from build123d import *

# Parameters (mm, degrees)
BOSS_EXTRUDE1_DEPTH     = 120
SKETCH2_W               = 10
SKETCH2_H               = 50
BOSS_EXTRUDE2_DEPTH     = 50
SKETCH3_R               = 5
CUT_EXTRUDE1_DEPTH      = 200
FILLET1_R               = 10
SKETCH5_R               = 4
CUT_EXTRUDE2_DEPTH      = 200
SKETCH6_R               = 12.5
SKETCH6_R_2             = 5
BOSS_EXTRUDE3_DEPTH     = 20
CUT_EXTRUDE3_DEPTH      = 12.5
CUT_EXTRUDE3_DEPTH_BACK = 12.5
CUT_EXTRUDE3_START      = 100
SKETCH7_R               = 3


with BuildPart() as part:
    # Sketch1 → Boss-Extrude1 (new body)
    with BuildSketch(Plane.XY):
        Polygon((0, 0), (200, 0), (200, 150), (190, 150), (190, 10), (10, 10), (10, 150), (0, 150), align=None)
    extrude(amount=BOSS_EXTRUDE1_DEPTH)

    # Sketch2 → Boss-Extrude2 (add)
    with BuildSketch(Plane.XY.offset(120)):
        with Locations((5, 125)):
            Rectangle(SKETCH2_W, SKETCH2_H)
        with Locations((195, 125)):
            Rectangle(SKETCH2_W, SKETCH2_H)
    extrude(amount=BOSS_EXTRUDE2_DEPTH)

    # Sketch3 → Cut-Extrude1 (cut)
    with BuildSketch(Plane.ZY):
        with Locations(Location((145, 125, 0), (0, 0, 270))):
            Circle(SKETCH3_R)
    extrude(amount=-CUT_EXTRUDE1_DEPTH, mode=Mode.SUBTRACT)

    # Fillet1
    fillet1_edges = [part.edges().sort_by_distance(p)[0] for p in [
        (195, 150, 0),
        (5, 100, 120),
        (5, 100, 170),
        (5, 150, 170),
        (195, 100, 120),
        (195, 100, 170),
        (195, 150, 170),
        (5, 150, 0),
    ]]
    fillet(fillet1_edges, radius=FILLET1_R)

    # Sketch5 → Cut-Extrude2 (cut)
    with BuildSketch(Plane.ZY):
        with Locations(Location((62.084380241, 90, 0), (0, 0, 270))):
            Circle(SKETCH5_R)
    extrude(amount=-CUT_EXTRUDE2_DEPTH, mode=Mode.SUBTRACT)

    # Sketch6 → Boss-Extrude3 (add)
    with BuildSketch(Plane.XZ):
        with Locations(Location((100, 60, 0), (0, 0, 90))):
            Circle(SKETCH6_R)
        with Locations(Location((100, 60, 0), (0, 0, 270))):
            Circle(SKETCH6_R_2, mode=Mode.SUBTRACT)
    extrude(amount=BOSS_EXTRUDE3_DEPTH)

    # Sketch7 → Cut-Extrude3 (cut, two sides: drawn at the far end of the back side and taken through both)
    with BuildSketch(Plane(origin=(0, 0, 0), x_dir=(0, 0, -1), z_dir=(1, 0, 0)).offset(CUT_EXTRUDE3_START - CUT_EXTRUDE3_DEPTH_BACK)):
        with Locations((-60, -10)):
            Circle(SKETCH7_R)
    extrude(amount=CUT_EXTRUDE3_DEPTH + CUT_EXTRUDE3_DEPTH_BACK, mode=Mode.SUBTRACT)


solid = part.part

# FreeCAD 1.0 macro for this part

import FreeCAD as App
import Part
import Sketcher
from FreeCAD import Vector


def edges_at(feature, points):
    """Names of the edges that pass closest to the given points."""
    edges = feature.Shape.Edges
    near = lambda p: min(range(len(edges)), key=lambda i: edges[i].distToShape(Part.Vertex(*p))[0])
    return sorted({f"Edge{near(p) + 1}" for p in points})

doc = App.newDocument("Part")
body = doc.addObject("PartDesign::Body", "Body")

# Sketch on XY plane
sketch1 = body.newObject("Sketcher::SketchObject", "Sketch")
sketch1.AttachmentSupport = (doc.getObject("XY_Plane"), [""])
sketch1.MapMode = "FlatFace"
sketch1.addGeometry([
    Part.LineSegment(Vector(0, 0, 0), Vector(200, 0, 0)),  # 0
    Part.LineSegment(Vector(200, 0, 0), Vector(200, 150, 0)),  # 1
    Part.LineSegment(Vector(200, 150, 0), Vector(190, 150, 0)),  # 2
    Part.LineSegment(Vector(190, 150, 0), Vector(190, 10, 0)),  # 3
    Part.LineSegment(Vector(190, 10, 0), Vector(10, 10, 0)),  # 4
    Part.LineSegment(Vector(10, 10, 0), Vector(10, 150, 0)),  # 5
    Part.LineSegment(Vector(10, 150, 0), Vector(0, 150, 0)),  # 6
    Part.LineSegment(Vector(0, 150, 0), Vector(0, 0, 0)),  # 7
], False)
sketch1.addConstraint([
    Sketcher.Constraint("Coincident", 0, 2, 1, 1),
    Sketcher.Constraint("Coincident", 1, 2, 2, 1),
    Sketcher.Constraint("Coincident", 2, 2, 3, 1),
    Sketcher.Constraint("Coincident", 3, 2, 4, 1),
    Sketcher.Constraint("Coincident", 4, 2, 5, 1),
    Sketcher.Constraint("Coincident", 5, 2, 6, 1),
    Sketcher.Constraint("Coincident", 6, 2, 7, 1),
    Sketcher.Constraint("Coincident", 7, 2, 0, 1),
    Sketcher.Constraint("Horizontal", 0),
    Sketcher.Constraint("Vertical", 1),
    Sketcher.Constraint("Horizontal", 2),
    Sketcher.Constraint("Vertical", 3),
    Sketcher.Constraint("Horizontal", 4),
    Sketcher.Constraint("Vertical", 5),
    Sketcher.Constraint("Horizontal", 6),
    Sketcher.Constraint("Vertical", 7),
    Sketcher.Constraint("Coincident", 7, 2, -1, 1),
    Sketcher.Constraint("Horizontal", 2, 2, 5, 2),
    Sketcher.Constraint("Equal", 2, 6),
    Sketcher.Constraint("DistanceX", 0, 1, 0, 2, 200.0),
    Sketcher.Constraint("DistanceX", 2, 2, 2, 1, 10.0),
    Sketcher.Constraint("DistanceY", 1, 1, 1, 2, 150.0),
    Sketcher.Constraint("DistanceY", 3, 2, 3, 1, 140.0),
])
pad1 = body.newObject("PartDesign::Pad", "Pad")
pad1.Profile = sketch1
pad1.Length = 120

# Sketch on XY plane
sketch2 = body.newObject("Sketcher::SketchObject", "Sketch001")
sketch2.AttachmentSupport = (doc.getObject("XY_Plane"), [""])
sketch2.MapMode = "FlatFace"
sketch2.AttachmentOffset = App.Placement(Vector(0, 0, 120), App.Rotation())
sketch2.addGeometry([
    Part.LineSegment(Vector(0, 150, 0), Vector(0, 100, 0)),  # 0
    Part.LineSegment(Vector(0, 100, 0), Vector(10, 100, 0)),  # 1
    Part.LineSegment(Vector(10, 100, 0), Vector(10, 150, 0)),  # 2
    Part.LineSegment(Vector(10, 150, 0), Vector(0, 150, 0)),  # 3
    Part.LineSegment(Vector(190, 150, 0), Vector(190, 100, 0)),  # 4
    Part.LineSegment(Vector(190, 100, 0), Vector(200, 100, 0)),  # 5
    Part.LineSegment(Vector(200, 100, 0), Vector(200, 150, 0)),  # 6
    Part.LineSegment(Vector(200, 150, 0), Vector(190, 150, 0)),  # 7
], False)
sketch2.addConstraint([
    Sketcher.Constraint("Coincident", 0, 2, 1, 1),
    Sketcher.Constraint("Coincident", 1, 2, 2, 1),
    Sketcher.Constraint("Coincident", 2, 2, 3, 1),
    Sketcher.Constraint("Coincident", 3, 2, 0, 1),
    Sketcher.Constraint("Coincident", 4, 2, 5, 1),
    Sketcher.Constraint("Coincident", 5, 2, 6, 1),
    Sketcher.Constraint("Coincident", 6, 2, 7, 1),
    Sketcher.Constraint("Coincident", 7, 2, 4, 1),
    Sketcher.Constraint("Vertical", 0),
    Sketcher.Constraint("Horizontal", 1),
    Sketcher.Constraint("Vertical", 2),
    Sketcher.Constraint("Horizontal", 3),
    Sketcher.Constraint("Vertical", 4),
    Sketcher.Constraint("Horizontal", 5),
    Sketcher.Constraint("Vertical", 6),
    Sketcher.Constraint("Horizontal", 7),
    Sketcher.Constraint("PointOnObject", 0, 2, -2),
    Sketcher.Constraint("Horizontal", 1, 2, 4, 2),
    Sketcher.Constraint("Horizontal", 3, 2, 6, 2),
    Sketcher.Constraint("Equal", 3, 5),
    Sketcher.Constraint("DistanceX", 1, 1, 1, 2, 10.0),
    Sketcher.Constraint("DistanceY", 0, 2, 0, 1, 50.0),
    Sketcher.Constraint("DistanceY", -1, 1, 0, 2, 100.0),
    Sketcher.Constraint("DistanceX", -1, 1, 4, 2, 190.0),
])
pad2 = body.newObject("PartDesign::Pad", "Pad001")
pad2.Profile = sketch2
pad2.Length = 50

# Sketch on YZ plane
sketch3 = body.newObject("Sketcher::SketchObject", "Sketch002")
sketch3.AttachmentSupport = (doc.getObject("YZ_Plane"), [""])
sketch3.MapMode = "FlatFace"
sketch3.addGeometry(Part.Circle(Vector(125, 145, 0), Vector(0, 0, 1), 5), False)
sketch3.addConstraint([
    Sketcher.Constraint("Diameter", 0, 10.0),
    Sketcher.Constraint("DistanceX", -1, 1, 0, 3, 125.0),
    Sketcher.Constraint("DistanceY", -1, 1, 0, 3, 145.0),
])
pocket1 = body.newObject("PartDesign::Pocket", "Pocket")
pocket1.Profile = sketch3
pocket1.Length = 200
pocket1.Reversed = True
doc.recompute()

fillet = body.newObject("PartDesign::Fillet", "Fillet")
fillet.Base = (pocket1, edges_at(pocket1, [
    (195, 150, 0),
    (5, 100, 120),
    (5, 100, 170),
    (5, 150, 170),
    (195, 100, 120),
    (195, 100, 170),
    (195, 150, 170),
    (5, 150, 0),
]))
fillet.Radius = 10

# Sketch on YZ plane
sketch4 = body.newObject("Sketcher::SketchObject", "Sketch003")
sketch4.AttachmentSupport = (doc.getObject("YZ_Plane"), [""])
sketch4.MapMode = "FlatFace"
sketch4.addGeometry(Part.Circle(Vector(90, 62.08438, 0), Vector(0, 0, 1), 4), False)
sketch4.addConstraint([
    Sketcher.Constraint("Diameter", 0, 8.0),
    Sketcher.Constraint("DistanceX", -1, 1, 0, 3, 90.0),
    Sketcher.Constraint("DistanceY", -1, 1, 0, 3, 62.08438),
])
pocket2 = body.newObject("PartDesign::Pocket", "Pocket001")
pocket2.Profile = sketch4
pocket2.Length = 200
pocket2.Reversed = True

# Sketch on XZ plane
sketch5 = body.newObject("Sketcher::SketchObject", "Sketch004")
sketch5.AttachmentSupport = (doc.getObject("XZ_Plane"), [""])
sketch5.MapMode = "FlatFace"
sketch5.addGeometry([
    Part.Circle(Vector(100, 60, 0), Vector(0, 0, 1), 12.5),
    Part.Circle(Vector(100, 60, 0), Vector(0, 0, 1), 5),
], False)
sketch5.addConstraint([
    Sketcher.Constraint("Coincident", 1, 3, 0, 3),
    Sketcher.Constraint("Diameter", 0, 25.0),
    Sketcher.Constraint("Diameter", 1, 10.0),
    Sketcher.Constraint("DistanceX", -1, 1, 0, 3, 100.0),
    Sketcher.Constraint("DistanceY", -1, 1, 0, 3, 60.0),
])
pad3 = body.newObject("PartDesign::Pad", "Pad002")
pad3.Profile = sketch5
pad3.Length = 20

# Sketch on YZ plane
sketch6 = body.newObject("Sketcher::SketchObject", "Sketch005")
sketch6.AttachmentSupport = (doc.getObject("YZ_Plane"), [""])
sketch6.MapMode = "FlatFace"
sketch6.AttachmentOffset = App.Placement(Vector(0, 0, 100), App.Rotation())
sketch6.addGeometry(Part.Circle(Vector(-10, 60, 0), Vector(0, 0, 1), 3), False)
sketch6.addConstraint([
    Sketcher.Constraint("Diameter", 0, 6.0),
    Sketcher.Constraint("DistanceX", 0, 3, -1, 1, 10.0),
    Sketcher.Constraint("DistanceY", -1, 1, 0, 3, 60.0),
])
pocket3 = body.newObject("PartDesign::Pocket", "Pocket002")
pocket3.Profile = sketch6
pocket3.Type = "ThroughAll"
pocket3.Midplane = True

doc.recompute()
